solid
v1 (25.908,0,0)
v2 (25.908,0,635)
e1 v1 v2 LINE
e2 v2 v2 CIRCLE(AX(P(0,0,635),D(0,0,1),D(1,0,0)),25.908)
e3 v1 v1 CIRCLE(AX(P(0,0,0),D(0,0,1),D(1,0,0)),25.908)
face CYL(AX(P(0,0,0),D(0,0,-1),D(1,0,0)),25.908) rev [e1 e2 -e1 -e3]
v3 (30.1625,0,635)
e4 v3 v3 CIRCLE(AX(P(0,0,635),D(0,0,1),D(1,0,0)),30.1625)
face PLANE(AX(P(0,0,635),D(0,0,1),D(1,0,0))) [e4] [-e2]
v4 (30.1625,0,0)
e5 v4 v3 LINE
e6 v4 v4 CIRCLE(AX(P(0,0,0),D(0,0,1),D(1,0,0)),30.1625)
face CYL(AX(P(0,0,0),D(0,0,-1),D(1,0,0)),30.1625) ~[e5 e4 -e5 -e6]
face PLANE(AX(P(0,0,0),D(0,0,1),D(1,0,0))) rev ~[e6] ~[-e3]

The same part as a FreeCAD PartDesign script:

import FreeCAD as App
import Part
import Sketcher
from FreeCAD import Vector
Q = App.Units.Quantity

doc = App.newDocument("Part")
body = doc.addObject("PartDesign::Body", "Body")

# Sketch on XY plane
sketch1 = body.newObject("Sketcher::SketchObject", "Sketch")
sketch1.AttachmentSupport = (doc.getObject("XY_Plane"), [""])
sketch1.MapMode = "FlatFace"
sketch1.addGeometry(Part.Circle(Vector(0, 0, 0), Vector(0, 0, 1), 30), False)
sketch1.addGeometry(Part.Circle(Vector(0, 0, 0), Vector(0, 0, 1), 26), False)
sketch1.addConstraint(Sketcher.Constraint("Coincident", 0, 3, -1, 1))
sketch1.addConstraint(Sketcher.Constraint("Coincident", 1, 3, -1, 1))
sketch1.addConstraint(Sketcher.Constraint("Diameter", 1, Q("2.04 in")))
sketch1.addConstraint(Sketcher.Constraint("Diameter", 0, Q("2.375 in")))
pad1 = body.newObject("PartDesign::Pad", "Pad")
pad1.Profile = sketch1
pad1.Length = Q("25 in")

doc.recompute()
